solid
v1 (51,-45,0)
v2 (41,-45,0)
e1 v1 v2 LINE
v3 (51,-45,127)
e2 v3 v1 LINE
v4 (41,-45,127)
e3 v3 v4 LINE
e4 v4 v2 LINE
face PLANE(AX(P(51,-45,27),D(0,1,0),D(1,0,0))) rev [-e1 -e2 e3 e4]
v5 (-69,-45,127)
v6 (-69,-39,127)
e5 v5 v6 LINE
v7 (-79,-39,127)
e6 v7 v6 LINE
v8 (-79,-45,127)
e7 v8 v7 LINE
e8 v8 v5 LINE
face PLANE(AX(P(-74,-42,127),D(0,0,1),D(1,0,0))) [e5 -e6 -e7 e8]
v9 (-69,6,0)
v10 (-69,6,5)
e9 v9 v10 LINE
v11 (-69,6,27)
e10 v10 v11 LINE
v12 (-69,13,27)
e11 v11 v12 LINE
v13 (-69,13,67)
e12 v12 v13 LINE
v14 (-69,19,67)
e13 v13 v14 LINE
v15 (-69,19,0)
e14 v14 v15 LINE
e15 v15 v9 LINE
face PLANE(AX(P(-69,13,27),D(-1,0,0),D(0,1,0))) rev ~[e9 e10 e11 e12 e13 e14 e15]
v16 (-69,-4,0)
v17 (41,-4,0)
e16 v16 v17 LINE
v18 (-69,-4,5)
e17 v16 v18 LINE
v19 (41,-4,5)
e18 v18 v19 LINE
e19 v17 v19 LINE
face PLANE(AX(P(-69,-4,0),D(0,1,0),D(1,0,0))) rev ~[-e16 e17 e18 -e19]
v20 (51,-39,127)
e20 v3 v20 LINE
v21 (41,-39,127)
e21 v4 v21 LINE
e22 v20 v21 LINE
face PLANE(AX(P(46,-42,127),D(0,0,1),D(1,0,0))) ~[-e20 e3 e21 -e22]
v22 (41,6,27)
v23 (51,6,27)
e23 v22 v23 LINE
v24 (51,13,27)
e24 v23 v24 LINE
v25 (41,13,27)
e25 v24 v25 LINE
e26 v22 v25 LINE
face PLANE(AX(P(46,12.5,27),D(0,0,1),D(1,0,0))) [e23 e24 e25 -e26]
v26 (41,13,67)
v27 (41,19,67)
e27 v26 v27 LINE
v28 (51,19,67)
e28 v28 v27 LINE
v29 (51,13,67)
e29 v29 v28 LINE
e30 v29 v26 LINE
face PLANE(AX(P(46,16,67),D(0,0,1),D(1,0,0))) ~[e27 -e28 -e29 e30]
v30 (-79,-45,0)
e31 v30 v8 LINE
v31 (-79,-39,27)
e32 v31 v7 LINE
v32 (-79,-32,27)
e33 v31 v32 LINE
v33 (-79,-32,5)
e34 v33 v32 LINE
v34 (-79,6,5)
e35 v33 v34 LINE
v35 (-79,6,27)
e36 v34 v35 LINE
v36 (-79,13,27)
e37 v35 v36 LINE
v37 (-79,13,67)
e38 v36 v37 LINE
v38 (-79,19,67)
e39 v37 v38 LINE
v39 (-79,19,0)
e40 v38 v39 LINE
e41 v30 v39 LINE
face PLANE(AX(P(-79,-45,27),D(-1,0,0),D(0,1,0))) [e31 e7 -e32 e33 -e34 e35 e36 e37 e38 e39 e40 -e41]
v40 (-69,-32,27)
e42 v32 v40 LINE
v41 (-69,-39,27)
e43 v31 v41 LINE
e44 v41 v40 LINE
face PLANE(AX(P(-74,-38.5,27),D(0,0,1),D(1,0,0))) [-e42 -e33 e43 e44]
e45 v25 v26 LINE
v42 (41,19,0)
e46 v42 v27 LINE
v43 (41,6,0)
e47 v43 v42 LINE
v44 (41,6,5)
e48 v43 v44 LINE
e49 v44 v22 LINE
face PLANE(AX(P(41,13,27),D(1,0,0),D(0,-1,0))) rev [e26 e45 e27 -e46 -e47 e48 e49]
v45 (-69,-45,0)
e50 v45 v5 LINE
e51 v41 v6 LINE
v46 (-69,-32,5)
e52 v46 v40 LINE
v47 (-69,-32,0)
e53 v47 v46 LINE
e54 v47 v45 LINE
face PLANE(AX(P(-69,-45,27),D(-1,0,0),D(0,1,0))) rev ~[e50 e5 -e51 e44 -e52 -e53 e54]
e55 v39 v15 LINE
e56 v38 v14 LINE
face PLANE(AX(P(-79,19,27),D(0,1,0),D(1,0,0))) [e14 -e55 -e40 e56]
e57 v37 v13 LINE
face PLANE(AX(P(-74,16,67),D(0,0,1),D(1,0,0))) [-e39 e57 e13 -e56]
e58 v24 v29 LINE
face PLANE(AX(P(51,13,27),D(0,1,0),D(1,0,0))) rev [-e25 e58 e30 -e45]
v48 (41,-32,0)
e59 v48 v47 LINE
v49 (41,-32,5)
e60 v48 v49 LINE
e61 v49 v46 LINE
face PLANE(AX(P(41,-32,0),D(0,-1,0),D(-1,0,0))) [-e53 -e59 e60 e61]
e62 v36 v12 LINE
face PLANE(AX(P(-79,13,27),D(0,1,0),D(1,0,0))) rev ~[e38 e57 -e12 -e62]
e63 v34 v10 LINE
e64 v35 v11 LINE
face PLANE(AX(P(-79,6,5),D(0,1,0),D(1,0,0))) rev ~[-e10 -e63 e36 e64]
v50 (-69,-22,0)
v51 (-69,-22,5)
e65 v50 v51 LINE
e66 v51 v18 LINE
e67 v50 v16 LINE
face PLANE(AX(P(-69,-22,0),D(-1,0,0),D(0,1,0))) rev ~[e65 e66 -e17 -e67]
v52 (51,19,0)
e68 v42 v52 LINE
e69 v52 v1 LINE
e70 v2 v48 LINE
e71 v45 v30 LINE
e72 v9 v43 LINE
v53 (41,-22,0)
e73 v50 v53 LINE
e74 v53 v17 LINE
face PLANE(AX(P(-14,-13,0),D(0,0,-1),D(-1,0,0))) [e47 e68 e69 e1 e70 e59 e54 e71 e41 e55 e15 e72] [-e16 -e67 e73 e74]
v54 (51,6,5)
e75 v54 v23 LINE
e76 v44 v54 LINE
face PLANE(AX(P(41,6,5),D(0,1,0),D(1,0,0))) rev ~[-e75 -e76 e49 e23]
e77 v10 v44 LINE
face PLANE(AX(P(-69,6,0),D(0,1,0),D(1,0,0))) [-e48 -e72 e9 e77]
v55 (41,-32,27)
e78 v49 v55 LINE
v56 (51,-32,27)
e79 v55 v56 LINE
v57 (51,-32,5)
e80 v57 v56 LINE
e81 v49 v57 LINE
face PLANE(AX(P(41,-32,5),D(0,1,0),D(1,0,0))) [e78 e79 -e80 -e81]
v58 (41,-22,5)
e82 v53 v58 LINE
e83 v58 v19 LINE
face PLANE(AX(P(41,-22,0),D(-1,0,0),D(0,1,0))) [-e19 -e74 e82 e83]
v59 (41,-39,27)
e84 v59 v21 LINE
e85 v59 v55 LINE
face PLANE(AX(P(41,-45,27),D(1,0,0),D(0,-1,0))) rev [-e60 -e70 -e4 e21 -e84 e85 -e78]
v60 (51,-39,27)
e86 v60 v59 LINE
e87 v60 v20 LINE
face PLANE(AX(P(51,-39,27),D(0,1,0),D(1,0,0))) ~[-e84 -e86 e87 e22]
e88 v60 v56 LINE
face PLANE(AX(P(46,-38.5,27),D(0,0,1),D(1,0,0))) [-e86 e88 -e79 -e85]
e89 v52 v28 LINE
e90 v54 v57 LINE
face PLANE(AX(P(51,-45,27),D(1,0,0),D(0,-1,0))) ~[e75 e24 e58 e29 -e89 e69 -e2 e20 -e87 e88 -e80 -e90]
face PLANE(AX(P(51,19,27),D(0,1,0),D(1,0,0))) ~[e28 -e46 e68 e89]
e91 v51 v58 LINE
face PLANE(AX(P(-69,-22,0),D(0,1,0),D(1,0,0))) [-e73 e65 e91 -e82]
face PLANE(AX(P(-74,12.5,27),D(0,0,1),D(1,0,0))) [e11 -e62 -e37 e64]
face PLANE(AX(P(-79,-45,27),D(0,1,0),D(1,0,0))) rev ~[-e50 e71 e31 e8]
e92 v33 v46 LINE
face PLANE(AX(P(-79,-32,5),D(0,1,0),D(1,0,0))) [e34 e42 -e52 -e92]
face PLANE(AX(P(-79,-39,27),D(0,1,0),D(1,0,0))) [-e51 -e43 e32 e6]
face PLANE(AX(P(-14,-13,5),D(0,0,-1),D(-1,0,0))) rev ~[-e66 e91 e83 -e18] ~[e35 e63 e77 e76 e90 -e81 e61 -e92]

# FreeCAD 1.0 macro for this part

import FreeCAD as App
import Part
import Sketcher

V = App.Vector
Q = App.Units.Quantity

doc = App.newDocument("Part")
params = doc.addObject("Spreadsheet::Sheet", "Params")
for row, (alias, value) in enumerate([
    ("sketch1_width", "110 mm"),
    ("sketch1_width2", "10 mm"),
    ("sketch1_height", "13 mm"),
    ("sketch1_height2", "64 mm"),
    ("sketch1_height3", "18 mm"),
    ("pad1_length", "5 mm"),
    ("sketch2_width", "10 mm"),
    ("sketch2_height", "13 mm"),
    ("pad2_length", "22 mm"),
    ("sketch3_width", "10 mm"),
    ("sketch3_height", "6 mm"),
    ("pad3_length", "40 mm"),
    ("sketch4_width", "10 mm"),
    ("sketch4_height", "6 mm"),
    ("pad4_length", "100 mm"),
], start=1):
    params.set(f"A{row}", alias)
    params.set(f"B{row}", "=" + value)
    params.setAlias(f"B{row}", alias)

body = doc.addObject("PartDesign::Body", "Body")

# Sketch on XY plane
sketch1 = body.newObject("Sketcher::SketchObject", "Sketch")
sketch1.AttachmentSupport = (doc.getObject("XY_Plane"), [""])
sketch1.MapMode = "FlatFace"
sketch1.addGeometry(Part.LineSegment(V(41, 6, 0), V(-69, 6, 0)), False)
sketch1.addGeometry(Part.LineSegment(V(-69, 6, 0), V(-69, 19, 0)), False)
sketch1.addGeometry(Part.LineSegment(V(-69, 19, 0), V(-79, 19, 0)), False)
sketch1.addGeometry(Part.LineSegment(V(-79, 19, 0), V(-79, -45, 0)), False)
sketch1.addGeometry(Part.LineSegment(V(-79, -45, 0), V(-69, -45, 0)), False)
sketch1.addGeometry(Part.LineSegment(V(-69, -45, 0), V(-69, -32, 0)), False)
sketch1.addGeometry(Part.LineSegment(V(-69, -32, 0), V(41, -32, 0)), False)
sketch1.addGeometry(Part.LineSegment(V(41, -32, 0), V(41, -45, 0)), False)
sketch1.addGeometry(Part.LineSegment(V(41, -45, 0), V(51, -45, 0)), False)
sketch1.addGeometry(Part.LineSegment(V(51, -45, 0), V(51, 19, 0)), False)
sketch1.addGeometry(Part.LineSegment(V(51, 19, 0), V(41, 19, 0)), False)
sketch1.addGeometry(Part.LineSegment(V(41, 19, 0), V(41, 6, 0)), False)
sketch1.addGeometry(Part.LineSegment(V(-69, -22, 0), V(-69, -4, 0)), False)
sketch1.addGeometry(Part.LineSegment(V(-69, -4, 0), V(41, -4, 0)), False)
sketch1.addGeometry(Part.LineSegment(V(41, -4, 0), V(41, -22, 0)), False)
sketch1.addGeometry(Part.LineSegment(V(41, -22, 0), V(-69, -22, 0)), False)
sketch1.addConstraint(Sketcher.Constraint("Coincident", 0, 2, 1, 1))
sketch1.addConstraint(Sketcher.Constraint("Coincident", 1, 2, 2, 1))
sketch1.addConstraint(Sketcher.Constraint("Coincident", 2, 2, 3, 1))
sketch1.addConstraint(Sketcher.Constraint("Coincident", 3, 2, 4, 1))
sketch1.addConstraint(Sketcher.Constraint("Coincident", 4, 2, 5, 1))
sketch1.addConstraint(Sketcher.Constraint("Coincident", 5, 2, 6, 1))
sketch1.addConstraint(Sketcher.Constraint("Coincident", 6, 2, 7, 1))
sketch1.addConstraint(Sketcher.Constraint("Coincident", 7, 2, 8, 1))
sketch1.addConstraint(Sketcher.Constraint("Coincident", 8, 2, 9, 1))
sketch1.addConstraint(Sketcher.Constraint("Coincident", 9, 2, 10, 1))
sketch1.addConstraint(Sketcher.Constraint("Coincident", 10, 2, 11, 1))
sketch1.addConstraint(Sketcher.Constraint("Coincident", 11, 2, 0, 1))
sketch1.addConstraint(Sketcher.Constraint("Coincident", 12, 2, 13, 1))
sketch1.addConstraint(Sketcher.Constraint("Coincident", 13, 2, 14, 1))
sketch1.addConstraint(Sketcher.Constraint("Coincident", 14, 2, 15, 1))
sketch1.addConstraint(Sketcher.Constraint("Coincident", 15, 2, 12, 1))
sketch1.addConstraint(Sketcher.Constraint("Horizontal", 0))
sketch1.addConstraint(Sketcher.Constraint("Vertical", 1))
sketch1.addConstraint(Sketcher.Constraint("Horizontal", 2))
sketch1.addConstraint(Sketcher.Constraint("Vertical", 3))
sketch1.addConstraint(Sketcher.Constraint("Horizontal", 4))
sketch1.addConstraint(Sketcher.Constraint("Vertical", 5))
sketch1.addConstraint(Sketcher.Constraint("Horizontal", 6))
sketch1.addConstraint(Sketcher.Constraint("Vertical", 7))
sketch1.addConstraint(Sketcher.Constraint("Horizontal", 8))
sketch1.addConstraint(Sketcher.Constraint("Vertical", 9))
sketch1.addConstraint(Sketcher.Constraint("Horizontal", 10))
sketch1.addConstraint(Sketcher.Constraint("Vertical", 11))
sketch1.addConstraint(Sketcher.Constraint("Vertical", 12))
sketch1.addConstraint(Sketcher.Constraint("Horizontal", 13))
sketch1.addConstraint(Sketcher.Constraint("Vertical", 14))
sketch1.addConstraint(Sketcher.Constraint("Horizontal", 15))
sketch1.addConstraint(Sketcher.Constraint("Horizontal", 4, 2, 7, 2))
sketch1.addConstraint(Sketcher.Constraint("Horizontal", 2, 2, 9, 2))
sketch1.addConstraint(Sketcher.Constraint("Vertical", 1, 2, 4, 2))
sketch1.addConstraint(Sketcher.Constraint("Vertical", 7, 2, 10, 2))
sketch1.addConstraint(Sketcher.Constraint("Vertical", 5, 2, 12, 2))
sketch1.addConstraint(Sketcher.Constraint("Vertical", 11, 2, 13, 2))
sketch1.addConstraint(Sketcher.Constraint("Equal", 4, 8))
sketch1.addConstraint(Sketcher.Constraint("Equal", 1, 5))
sketch1.addConstraint(Sketcher.Constraint("DistanceX", 0, 2, 0, 1, Q("110 mm")))
sketch1.addConstraint(Sketcher.Constraint("DistanceX", 2, 2, 2, 1, Q("10 mm")))
sketch1.addConstraint(Sketcher.Constraint("DistanceY", 1, 1, 1, 2, Q("13 mm")))
sketch1.addConstraint(Sketcher.Constraint("DistanceY", 3, 2, 3, 1, Q("64 mm")))
sketch1.addConstraint(Sketcher.Constraint("DistanceY", 12, 1, 12, 2, Q("18 mm")))
sketch1.addConstraint(Sketcher.Constraint("DistanceX", 0, 2, -1, 1, Q("69 mm")))
sketch1.addConstraint(Sketcher.Constraint("DistanceY", -1, 1, 0, 2, Q("6 mm")))
sketch1.addConstraint(Sketcher.Constraint("DistanceY", 12, 2, -1, 1, Q("4 mm")))
sketch1.setExpression("Constraints[40]", "Params.sketch1_width")
sketch1.setExpression("Constraints[41]", "Params.sketch1_width2")
sketch1.setExpression("Constraints[42]", "Params.sketch1_height")
sketch1.setExpression("Constraints[43]", "Params.sketch1_height2")
sketch1.setExpression("Constraints[44]", "Params.sketch1_height3")
pad1 = body.newObject("PartDesign::Pad", "Pad")
pad1.Profile = sketch1
pad1.setExpression("Length", "Params.pad1_length")

# Sketch on XY plane
sketch2 = body.newObject("Sketcher::SketchObject", "Sketch001")
sketch2.AttachmentSupport = (doc.getObject("XY_Plane"), [""])
sketch2.MapMode = "FlatFace"
sketch2.AttachmentOffset = App.Placement(V(0, 0, 5), App.Rotation())
sketch2.addGeometry(Part.LineSegment(V(-79, 19, 0), V(-79, 6, 0)), False)
sketch2.addGeometry(Part.LineSegment(V(-79, 6, 0), V(-69, 6, 0)), False)
sketch2.addGeometry(Part.LineSegment(V(-69, 6, 0), V(-69, 19, 0)), False)
sketch2.addGeometry(Part.LineSegment(V(-69, 19, 0), V(-79, 19, 0)), False)
sketch2.addGeometry(Part.LineSegment(V(-79, -32, 0), V(-79, -45, 0)), False)
sketch2.addGeometry(Part.LineSegment(V(-79, -45, 0), V(-69, -45, 0)), False)
sketch2.addGeometry(Part.LineSegment(V(-69, -45, 0), V(-69, -32, 0)), False)
sketch2.addGeometry(Part.LineSegment(V(-69, -32, 0), V(-79, -32, 0)), False)
sketch2.addGeometry(Part.LineSegment(V(41, 19, 0), V(41, 6, 0)), False)
sketch2.addGeometry(Part.LineSegment(V(41, 6, 0), V(51, 6, 0)), False)
sketch2.addGeometry(Part.LineSegment(V(51, 6, 0), V(51, 19, 0)), False)
sketch2.addGeometry(Part.LineSegment(V(51, 19, 0), V(41, 19, 0)), False)
sketch2.addGeometry(Part.LineSegment(V(41, -32, 0), V(41, -45, 0)), False)
sketch2.addGeometry(Part.LineSegment(V(41, -45, 0), V(51, -45, 0)), False)
sketch2.addGeometry(Part.LineSegment(V(51, -45, 0), V(51, -32, 0)), False)
sketch2.addGeometry(Part.LineSegment(V(51, -32, 0), V(41, -32, 0)), False)
sketch2.addConstraint(Sketcher.Constraint("Coincident", 0, 2, 1, 1))
sketch2.addConstraint(Sketcher.Constraint("Coincident", 1, 2, 2, 1))
sketch2.addConstraint(Sketcher.Constraint("Coincident", 2, 2, 3, 1))
sketch2.addConstraint(Sketcher.Constraint("Coincident", 3, 2, 0, 1))
sketch2.addConstraint(Sketcher.Constraint("Coincident", 4, 2, 5, 1))
sketch2.addConstraint(Sketcher.Constraint("Coincident", 5, 2, 6, 1))
sketch2.addConstraint(Sketcher.Constraint("Coincident", 6, 2, 7, 1))
sketch2.addConstraint(Sketcher.Constraint("Coincident", 7, 2, 4, 1))
sketch2.addConstraint(Sketcher.Constraint("Coincident", 8, 2, 9, 1))
sketch2.addConstraint(Sketcher.Constraint("Coincident", 9, 2, 10, 1))
sketch2.addConstraint(Sketcher.Constraint("Coincident", 10, 2, 11, 1))
sketch2.addConstraint(Sketcher.Constraint("Coincident", 11, 2, 8, 1))
sketch2.addConstraint(Sketcher.Constraint("Coincident", 12, 2, 13, 1))
sketch2.addConstraint(Sketcher.Constraint("Coincident", 13, 2, 14, 1))
sketch2.addConstraint(Sketcher.Constraint("Coincident", 14, 2, 15, 1))
sketch2.addConstraint(Sketcher.Constraint("Coincident", 15, 2, 12, 1))
sketch2.addConstraint(Sketcher.Constraint("Vertical", 0))
sketch2.addConstraint(Sketcher.Constraint("Horizontal", 1))
sketch2.addConstraint(Sketcher.Constraint("Vertical", 2))
sketch2.addConstraint(Sketcher.Constraint("Horizontal", 3))
sketch2.addConstraint(Sketcher.Constraint("Vertical", 4))
sketch2.addConstraint(Sketcher.Constraint("Horizontal", 5))
sketch2.addConstraint(Sketcher.Constraint("Vertical", 6))
sketch2.addConstraint(Sketcher.Constraint("Horizontal", 7))
sketch2.addConstraint(Sketcher.Constraint("Vertical", 8))
sketch2.addConstraint(Sketcher.Constraint("Horizontal", 9))
sketch2.addConstraint(Sketcher.Constraint("Vertical", 10))
sketch2.addConstraint(Sketcher.Constraint("Horizontal", 11))
sketch2.addConstraint(Sketcher.Constraint("Vertical", 12))
sketch2.addConstraint(Sketcher.Constraint("Horizontal", 13))
sketch2.addConstraint(Sketcher.Constraint("Vertical", 14))
sketch2.addConstraint(Sketcher.Constraint("Horizontal", 15))
sketch2.addConstraint(Sketcher.Constraint("Horizontal", 1, 2, 8, 2))
sketch2.addConstraint(Sketcher.Constraint("Horizontal", 3, 2, 10, 2))
sketch2.addConstraint(Sketcher.Constraint("Horizontal", 5, 2, 12, 2))
sketch2.addConstraint(Sketcher.Constraint("Horizontal", 7, 2, 14, 2))
sketch2.addConstraint(Sketcher.Constraint("Vertical", 3, 2, 4, 2))
sketch2.addConstraint(Sketcher.Constraint("Vertical", 2, 2, 5, 2))
sketch2.addConstraint(Sketcher.Constraint("Vertical", 11, 2, 12, 2))
sketch2.addConstraint(Sketcher.Constraint("Vertical", 10, 2, 13, 2))
sketch2.addConstraint(Sketcher.Constraint("Equal", 7, 9))
sketch2.addConstraint(Sketcher.Constraint("Equal", 2, 4))
sketch2.addConstraint(Sketcher.Constraint("DistanceX", 1, 1, 1, 2, Q("10 mm")))
sketch2.addConstraint(Sketcher.Constraint("DistanceY", 0, 2, 0, 1, Q("13 mm")))
sketch2.addConstraint(Sketcher.Constraint("DistanceX", 0, 2, -1, 1, Q("79 mm")))
sketch2.addConstraint(Sketcher.Constraint("DistanceY", -1, 1, 0, 2, Q("6 mm")))
sketch2.addConstraint(Sketcher.Constraint("DistanceY", 4, 2, -1, 1, Q("45 mm")))
sketch2.addConstraint(Sketcher.Constraint("DistanceX", -1, 1, 8, 2, Q("41 mm")))
sketch2.setExpression("Constraints[42]", "Params.sketch2_width")
sketch2.setExpression("Constraints[43]", "Params.sketch2_height")
pad2 = body.newObject("PartDesign::Pad", "Pad001")
pad2.Profile = sketch2
pad2.setExpression("Length", "Params.pad2_length")

# Sketch on XY plane
sketch3 = body.newObject("Sketcher::SketchObject", "Sketch002")
sketch3.AttachmentSupport = (doc.getObject("XY_Plane"), [""])
sketch3.MapMode = "FlatFace"
sketch3.AttachmentOffset = App.Placement(V(0, 0, 27), App.Rotation())
sketch3.addGeometry(Part.LineSegment(V(-79, 19, 0), V(-79, 13, 0)), False)
sketch3.addGeometry(Part.LineSegment(V(-79, 13, 0), V(-69, 13, 0)), False)
sketch3.addGeometry(Part.LineSegment(V(-69, 13, 0), V(-69, 19, 0)), False)
sketch3.addGeometry(Part.LineSegment(V(-69, 19, 0), V(-79, 19, 0)), False)
sketch3.addConstraint(Sketcher.Constraint("Coincident", 0, 2, 1, 1))
sketch3.addConstraint(Sketcher.Constraint("Coincident", 1, 2, 2, 1))
sketch3.addConstraint(Sketcher.Constraint("Coincident", 2, 2, 3, 1))
sketch3.addConstraint(Sketcher.Constraint("Coincident", 3, 2, 0, 1))
sketch3.addConstraint(Sketcher.Constraint("Vertical", 0))
sketch3.addConstraint(Sketcher.Constraint("Horizontal", 1))
sketch3.addConstraint(Sketcher.Constraint("Vertical", 2))
sketch3.addConstraint(Sketcher.Constraint("Horizontal", 3))
sketch3.addConstraint(Sketcher.Constraint("DistanceX", 1, 1, 1, 2, Q("10 mm")))
sketch3.addConstraint(Sketcher.Constraint("DistanceY", 0, 2, 0, 1, Q("6 mm")))
sketch3.addConstraint(Sketcher.Constraint("DistanceX", 0, 2, -1, 1, Q("79 mm")))
sketch3.addConstraint(Sketcher.Constraint("DistanceY", -1, 1, 0, 2, Q("13 mm")))
sketch3.setExpression("Constraints[8]", "Params.sketch3_width")
sketch3.setExpression("Constraints[9]", "Params.sketch3_height")
pad3 = body.newObject("PartDesign::Pad", "Pad002")
pad3.Profile = sketch3
pad3.setExpression("Length", "Params.pad3_length")
doc.recompute()

datumplane = body.newObject("PartDesign::Plane", "DatumPlane")
datumplane.AttachmentSupport = (doc.getObject("YZ_Plane"), [""])
datumplane.MapMode = "FlatFace"
datumplane.AttachmentOffset = App.Placement(V(0, 0, -14), App.Rotation())
mirrored = body.newObject("PartDesign::Mirrored", "Mirrored")
mirrored.Originals = [pad3]
mirrored.MirrorPlane = (datumplane, [""])
body.Tip = mirrored

# Sketch on XY plane
sketch4 = body.newObject("Sketcher::SketchObject", "Sketch003")
sketch4.AttachmentSupport = (doc.getObject("XY_Plane"), [""])
sketch4.MapMode = "FlatFace"
sketch4.AttachmentOffset = App.Placement(V(0, 0, 27), App.Rotation())
sketch4.addGeometry(Part.LineSegment(V(-79, -39, 0), V(-79, -45, 0)), False)
sketch4.addGeometry(Part.LineSegment(V(-79, -45, 0), V(-69, -45, 0)), False)
sketch4.addGeometry(Part.LineSegment(V(-69, -45, 0), V(-69, -39, 0)), False)
sketch4.addGeometry(Part.LineSegment(V(-69, -39, 0), V(-79, -39, 0)), False)
sketch4.addConstraint(Sketcher.Constraint("Coincident", 0, 2, 1, 1))
sketch4.addConstraint(Sketcher.Constraint("Coincident", 1, 2, 2, 1))
sketch4.addConstraint(Sketcher.Constraint("Coincident", 2, 2, 3, 1))
sketch4.addConstraint(Sketcher.Constraint("Coincident", 3, 2, 0, 1))
sketch4.addConstraint(Sketcher.Constraint("Vertical", 0))
sketch4.addConstraint(Sketcher.Constraint("Horizontal", 1))
sketch4.addConstraint(Sketcher.Constraint("Vertical", 2))
sketch4.addConstraint(Sketcher.Constraint("Horizontal", 3))
sketch4.addConstraint(Sketcher.Constraint("DistanceX", 1, 1, 1, 2, Q("10 mm")))
sketch4.addConstraint(Sketcher.Constraint("DistanceY", 0, 2, 0, 1, Q("6 mm")))
sketch4.addConstraint(Sketcher.Constraint("DistanceX", 0, 2, -1, 1, Q("79 mm")))
sketch4.addConstraint(Sketcher.Constraint("DistanceY", 0, 2, -1, 1, Q("45 mm")))
sketch4.setExpression("Constraints[8]", "Params.sketch4_width")
sketch4.setExpression("Constraints[9]", "Params.sketch4_height")
pad4 = body.newObject("PartDesign::Pad", "Pad003")
pad4.Profile = sketch4
pad4.setExpression("Length", "Params.pad4_length")
doc.recompute()

datumplane2 = body.newObject("PartDesign::Plane", "DatumPlane001")
datumplane2.AttachmentSupport = (doc.getObject("YZ_Plane"), [""])
datumplane2.MapMode = "FlatFace"
datumplane2.AttachmentOffset = App.Placement(V(0, 0, -14), App.Rotation())
mirrored2 = body.newObject("PartDesign::Mirrored", "Mirrored001")
mirrored2.Originals = [pad4]
mirrored2.MirrorPlane = (datumplane2, [""])
body.Tip = mirrored2

doc.recompute()
